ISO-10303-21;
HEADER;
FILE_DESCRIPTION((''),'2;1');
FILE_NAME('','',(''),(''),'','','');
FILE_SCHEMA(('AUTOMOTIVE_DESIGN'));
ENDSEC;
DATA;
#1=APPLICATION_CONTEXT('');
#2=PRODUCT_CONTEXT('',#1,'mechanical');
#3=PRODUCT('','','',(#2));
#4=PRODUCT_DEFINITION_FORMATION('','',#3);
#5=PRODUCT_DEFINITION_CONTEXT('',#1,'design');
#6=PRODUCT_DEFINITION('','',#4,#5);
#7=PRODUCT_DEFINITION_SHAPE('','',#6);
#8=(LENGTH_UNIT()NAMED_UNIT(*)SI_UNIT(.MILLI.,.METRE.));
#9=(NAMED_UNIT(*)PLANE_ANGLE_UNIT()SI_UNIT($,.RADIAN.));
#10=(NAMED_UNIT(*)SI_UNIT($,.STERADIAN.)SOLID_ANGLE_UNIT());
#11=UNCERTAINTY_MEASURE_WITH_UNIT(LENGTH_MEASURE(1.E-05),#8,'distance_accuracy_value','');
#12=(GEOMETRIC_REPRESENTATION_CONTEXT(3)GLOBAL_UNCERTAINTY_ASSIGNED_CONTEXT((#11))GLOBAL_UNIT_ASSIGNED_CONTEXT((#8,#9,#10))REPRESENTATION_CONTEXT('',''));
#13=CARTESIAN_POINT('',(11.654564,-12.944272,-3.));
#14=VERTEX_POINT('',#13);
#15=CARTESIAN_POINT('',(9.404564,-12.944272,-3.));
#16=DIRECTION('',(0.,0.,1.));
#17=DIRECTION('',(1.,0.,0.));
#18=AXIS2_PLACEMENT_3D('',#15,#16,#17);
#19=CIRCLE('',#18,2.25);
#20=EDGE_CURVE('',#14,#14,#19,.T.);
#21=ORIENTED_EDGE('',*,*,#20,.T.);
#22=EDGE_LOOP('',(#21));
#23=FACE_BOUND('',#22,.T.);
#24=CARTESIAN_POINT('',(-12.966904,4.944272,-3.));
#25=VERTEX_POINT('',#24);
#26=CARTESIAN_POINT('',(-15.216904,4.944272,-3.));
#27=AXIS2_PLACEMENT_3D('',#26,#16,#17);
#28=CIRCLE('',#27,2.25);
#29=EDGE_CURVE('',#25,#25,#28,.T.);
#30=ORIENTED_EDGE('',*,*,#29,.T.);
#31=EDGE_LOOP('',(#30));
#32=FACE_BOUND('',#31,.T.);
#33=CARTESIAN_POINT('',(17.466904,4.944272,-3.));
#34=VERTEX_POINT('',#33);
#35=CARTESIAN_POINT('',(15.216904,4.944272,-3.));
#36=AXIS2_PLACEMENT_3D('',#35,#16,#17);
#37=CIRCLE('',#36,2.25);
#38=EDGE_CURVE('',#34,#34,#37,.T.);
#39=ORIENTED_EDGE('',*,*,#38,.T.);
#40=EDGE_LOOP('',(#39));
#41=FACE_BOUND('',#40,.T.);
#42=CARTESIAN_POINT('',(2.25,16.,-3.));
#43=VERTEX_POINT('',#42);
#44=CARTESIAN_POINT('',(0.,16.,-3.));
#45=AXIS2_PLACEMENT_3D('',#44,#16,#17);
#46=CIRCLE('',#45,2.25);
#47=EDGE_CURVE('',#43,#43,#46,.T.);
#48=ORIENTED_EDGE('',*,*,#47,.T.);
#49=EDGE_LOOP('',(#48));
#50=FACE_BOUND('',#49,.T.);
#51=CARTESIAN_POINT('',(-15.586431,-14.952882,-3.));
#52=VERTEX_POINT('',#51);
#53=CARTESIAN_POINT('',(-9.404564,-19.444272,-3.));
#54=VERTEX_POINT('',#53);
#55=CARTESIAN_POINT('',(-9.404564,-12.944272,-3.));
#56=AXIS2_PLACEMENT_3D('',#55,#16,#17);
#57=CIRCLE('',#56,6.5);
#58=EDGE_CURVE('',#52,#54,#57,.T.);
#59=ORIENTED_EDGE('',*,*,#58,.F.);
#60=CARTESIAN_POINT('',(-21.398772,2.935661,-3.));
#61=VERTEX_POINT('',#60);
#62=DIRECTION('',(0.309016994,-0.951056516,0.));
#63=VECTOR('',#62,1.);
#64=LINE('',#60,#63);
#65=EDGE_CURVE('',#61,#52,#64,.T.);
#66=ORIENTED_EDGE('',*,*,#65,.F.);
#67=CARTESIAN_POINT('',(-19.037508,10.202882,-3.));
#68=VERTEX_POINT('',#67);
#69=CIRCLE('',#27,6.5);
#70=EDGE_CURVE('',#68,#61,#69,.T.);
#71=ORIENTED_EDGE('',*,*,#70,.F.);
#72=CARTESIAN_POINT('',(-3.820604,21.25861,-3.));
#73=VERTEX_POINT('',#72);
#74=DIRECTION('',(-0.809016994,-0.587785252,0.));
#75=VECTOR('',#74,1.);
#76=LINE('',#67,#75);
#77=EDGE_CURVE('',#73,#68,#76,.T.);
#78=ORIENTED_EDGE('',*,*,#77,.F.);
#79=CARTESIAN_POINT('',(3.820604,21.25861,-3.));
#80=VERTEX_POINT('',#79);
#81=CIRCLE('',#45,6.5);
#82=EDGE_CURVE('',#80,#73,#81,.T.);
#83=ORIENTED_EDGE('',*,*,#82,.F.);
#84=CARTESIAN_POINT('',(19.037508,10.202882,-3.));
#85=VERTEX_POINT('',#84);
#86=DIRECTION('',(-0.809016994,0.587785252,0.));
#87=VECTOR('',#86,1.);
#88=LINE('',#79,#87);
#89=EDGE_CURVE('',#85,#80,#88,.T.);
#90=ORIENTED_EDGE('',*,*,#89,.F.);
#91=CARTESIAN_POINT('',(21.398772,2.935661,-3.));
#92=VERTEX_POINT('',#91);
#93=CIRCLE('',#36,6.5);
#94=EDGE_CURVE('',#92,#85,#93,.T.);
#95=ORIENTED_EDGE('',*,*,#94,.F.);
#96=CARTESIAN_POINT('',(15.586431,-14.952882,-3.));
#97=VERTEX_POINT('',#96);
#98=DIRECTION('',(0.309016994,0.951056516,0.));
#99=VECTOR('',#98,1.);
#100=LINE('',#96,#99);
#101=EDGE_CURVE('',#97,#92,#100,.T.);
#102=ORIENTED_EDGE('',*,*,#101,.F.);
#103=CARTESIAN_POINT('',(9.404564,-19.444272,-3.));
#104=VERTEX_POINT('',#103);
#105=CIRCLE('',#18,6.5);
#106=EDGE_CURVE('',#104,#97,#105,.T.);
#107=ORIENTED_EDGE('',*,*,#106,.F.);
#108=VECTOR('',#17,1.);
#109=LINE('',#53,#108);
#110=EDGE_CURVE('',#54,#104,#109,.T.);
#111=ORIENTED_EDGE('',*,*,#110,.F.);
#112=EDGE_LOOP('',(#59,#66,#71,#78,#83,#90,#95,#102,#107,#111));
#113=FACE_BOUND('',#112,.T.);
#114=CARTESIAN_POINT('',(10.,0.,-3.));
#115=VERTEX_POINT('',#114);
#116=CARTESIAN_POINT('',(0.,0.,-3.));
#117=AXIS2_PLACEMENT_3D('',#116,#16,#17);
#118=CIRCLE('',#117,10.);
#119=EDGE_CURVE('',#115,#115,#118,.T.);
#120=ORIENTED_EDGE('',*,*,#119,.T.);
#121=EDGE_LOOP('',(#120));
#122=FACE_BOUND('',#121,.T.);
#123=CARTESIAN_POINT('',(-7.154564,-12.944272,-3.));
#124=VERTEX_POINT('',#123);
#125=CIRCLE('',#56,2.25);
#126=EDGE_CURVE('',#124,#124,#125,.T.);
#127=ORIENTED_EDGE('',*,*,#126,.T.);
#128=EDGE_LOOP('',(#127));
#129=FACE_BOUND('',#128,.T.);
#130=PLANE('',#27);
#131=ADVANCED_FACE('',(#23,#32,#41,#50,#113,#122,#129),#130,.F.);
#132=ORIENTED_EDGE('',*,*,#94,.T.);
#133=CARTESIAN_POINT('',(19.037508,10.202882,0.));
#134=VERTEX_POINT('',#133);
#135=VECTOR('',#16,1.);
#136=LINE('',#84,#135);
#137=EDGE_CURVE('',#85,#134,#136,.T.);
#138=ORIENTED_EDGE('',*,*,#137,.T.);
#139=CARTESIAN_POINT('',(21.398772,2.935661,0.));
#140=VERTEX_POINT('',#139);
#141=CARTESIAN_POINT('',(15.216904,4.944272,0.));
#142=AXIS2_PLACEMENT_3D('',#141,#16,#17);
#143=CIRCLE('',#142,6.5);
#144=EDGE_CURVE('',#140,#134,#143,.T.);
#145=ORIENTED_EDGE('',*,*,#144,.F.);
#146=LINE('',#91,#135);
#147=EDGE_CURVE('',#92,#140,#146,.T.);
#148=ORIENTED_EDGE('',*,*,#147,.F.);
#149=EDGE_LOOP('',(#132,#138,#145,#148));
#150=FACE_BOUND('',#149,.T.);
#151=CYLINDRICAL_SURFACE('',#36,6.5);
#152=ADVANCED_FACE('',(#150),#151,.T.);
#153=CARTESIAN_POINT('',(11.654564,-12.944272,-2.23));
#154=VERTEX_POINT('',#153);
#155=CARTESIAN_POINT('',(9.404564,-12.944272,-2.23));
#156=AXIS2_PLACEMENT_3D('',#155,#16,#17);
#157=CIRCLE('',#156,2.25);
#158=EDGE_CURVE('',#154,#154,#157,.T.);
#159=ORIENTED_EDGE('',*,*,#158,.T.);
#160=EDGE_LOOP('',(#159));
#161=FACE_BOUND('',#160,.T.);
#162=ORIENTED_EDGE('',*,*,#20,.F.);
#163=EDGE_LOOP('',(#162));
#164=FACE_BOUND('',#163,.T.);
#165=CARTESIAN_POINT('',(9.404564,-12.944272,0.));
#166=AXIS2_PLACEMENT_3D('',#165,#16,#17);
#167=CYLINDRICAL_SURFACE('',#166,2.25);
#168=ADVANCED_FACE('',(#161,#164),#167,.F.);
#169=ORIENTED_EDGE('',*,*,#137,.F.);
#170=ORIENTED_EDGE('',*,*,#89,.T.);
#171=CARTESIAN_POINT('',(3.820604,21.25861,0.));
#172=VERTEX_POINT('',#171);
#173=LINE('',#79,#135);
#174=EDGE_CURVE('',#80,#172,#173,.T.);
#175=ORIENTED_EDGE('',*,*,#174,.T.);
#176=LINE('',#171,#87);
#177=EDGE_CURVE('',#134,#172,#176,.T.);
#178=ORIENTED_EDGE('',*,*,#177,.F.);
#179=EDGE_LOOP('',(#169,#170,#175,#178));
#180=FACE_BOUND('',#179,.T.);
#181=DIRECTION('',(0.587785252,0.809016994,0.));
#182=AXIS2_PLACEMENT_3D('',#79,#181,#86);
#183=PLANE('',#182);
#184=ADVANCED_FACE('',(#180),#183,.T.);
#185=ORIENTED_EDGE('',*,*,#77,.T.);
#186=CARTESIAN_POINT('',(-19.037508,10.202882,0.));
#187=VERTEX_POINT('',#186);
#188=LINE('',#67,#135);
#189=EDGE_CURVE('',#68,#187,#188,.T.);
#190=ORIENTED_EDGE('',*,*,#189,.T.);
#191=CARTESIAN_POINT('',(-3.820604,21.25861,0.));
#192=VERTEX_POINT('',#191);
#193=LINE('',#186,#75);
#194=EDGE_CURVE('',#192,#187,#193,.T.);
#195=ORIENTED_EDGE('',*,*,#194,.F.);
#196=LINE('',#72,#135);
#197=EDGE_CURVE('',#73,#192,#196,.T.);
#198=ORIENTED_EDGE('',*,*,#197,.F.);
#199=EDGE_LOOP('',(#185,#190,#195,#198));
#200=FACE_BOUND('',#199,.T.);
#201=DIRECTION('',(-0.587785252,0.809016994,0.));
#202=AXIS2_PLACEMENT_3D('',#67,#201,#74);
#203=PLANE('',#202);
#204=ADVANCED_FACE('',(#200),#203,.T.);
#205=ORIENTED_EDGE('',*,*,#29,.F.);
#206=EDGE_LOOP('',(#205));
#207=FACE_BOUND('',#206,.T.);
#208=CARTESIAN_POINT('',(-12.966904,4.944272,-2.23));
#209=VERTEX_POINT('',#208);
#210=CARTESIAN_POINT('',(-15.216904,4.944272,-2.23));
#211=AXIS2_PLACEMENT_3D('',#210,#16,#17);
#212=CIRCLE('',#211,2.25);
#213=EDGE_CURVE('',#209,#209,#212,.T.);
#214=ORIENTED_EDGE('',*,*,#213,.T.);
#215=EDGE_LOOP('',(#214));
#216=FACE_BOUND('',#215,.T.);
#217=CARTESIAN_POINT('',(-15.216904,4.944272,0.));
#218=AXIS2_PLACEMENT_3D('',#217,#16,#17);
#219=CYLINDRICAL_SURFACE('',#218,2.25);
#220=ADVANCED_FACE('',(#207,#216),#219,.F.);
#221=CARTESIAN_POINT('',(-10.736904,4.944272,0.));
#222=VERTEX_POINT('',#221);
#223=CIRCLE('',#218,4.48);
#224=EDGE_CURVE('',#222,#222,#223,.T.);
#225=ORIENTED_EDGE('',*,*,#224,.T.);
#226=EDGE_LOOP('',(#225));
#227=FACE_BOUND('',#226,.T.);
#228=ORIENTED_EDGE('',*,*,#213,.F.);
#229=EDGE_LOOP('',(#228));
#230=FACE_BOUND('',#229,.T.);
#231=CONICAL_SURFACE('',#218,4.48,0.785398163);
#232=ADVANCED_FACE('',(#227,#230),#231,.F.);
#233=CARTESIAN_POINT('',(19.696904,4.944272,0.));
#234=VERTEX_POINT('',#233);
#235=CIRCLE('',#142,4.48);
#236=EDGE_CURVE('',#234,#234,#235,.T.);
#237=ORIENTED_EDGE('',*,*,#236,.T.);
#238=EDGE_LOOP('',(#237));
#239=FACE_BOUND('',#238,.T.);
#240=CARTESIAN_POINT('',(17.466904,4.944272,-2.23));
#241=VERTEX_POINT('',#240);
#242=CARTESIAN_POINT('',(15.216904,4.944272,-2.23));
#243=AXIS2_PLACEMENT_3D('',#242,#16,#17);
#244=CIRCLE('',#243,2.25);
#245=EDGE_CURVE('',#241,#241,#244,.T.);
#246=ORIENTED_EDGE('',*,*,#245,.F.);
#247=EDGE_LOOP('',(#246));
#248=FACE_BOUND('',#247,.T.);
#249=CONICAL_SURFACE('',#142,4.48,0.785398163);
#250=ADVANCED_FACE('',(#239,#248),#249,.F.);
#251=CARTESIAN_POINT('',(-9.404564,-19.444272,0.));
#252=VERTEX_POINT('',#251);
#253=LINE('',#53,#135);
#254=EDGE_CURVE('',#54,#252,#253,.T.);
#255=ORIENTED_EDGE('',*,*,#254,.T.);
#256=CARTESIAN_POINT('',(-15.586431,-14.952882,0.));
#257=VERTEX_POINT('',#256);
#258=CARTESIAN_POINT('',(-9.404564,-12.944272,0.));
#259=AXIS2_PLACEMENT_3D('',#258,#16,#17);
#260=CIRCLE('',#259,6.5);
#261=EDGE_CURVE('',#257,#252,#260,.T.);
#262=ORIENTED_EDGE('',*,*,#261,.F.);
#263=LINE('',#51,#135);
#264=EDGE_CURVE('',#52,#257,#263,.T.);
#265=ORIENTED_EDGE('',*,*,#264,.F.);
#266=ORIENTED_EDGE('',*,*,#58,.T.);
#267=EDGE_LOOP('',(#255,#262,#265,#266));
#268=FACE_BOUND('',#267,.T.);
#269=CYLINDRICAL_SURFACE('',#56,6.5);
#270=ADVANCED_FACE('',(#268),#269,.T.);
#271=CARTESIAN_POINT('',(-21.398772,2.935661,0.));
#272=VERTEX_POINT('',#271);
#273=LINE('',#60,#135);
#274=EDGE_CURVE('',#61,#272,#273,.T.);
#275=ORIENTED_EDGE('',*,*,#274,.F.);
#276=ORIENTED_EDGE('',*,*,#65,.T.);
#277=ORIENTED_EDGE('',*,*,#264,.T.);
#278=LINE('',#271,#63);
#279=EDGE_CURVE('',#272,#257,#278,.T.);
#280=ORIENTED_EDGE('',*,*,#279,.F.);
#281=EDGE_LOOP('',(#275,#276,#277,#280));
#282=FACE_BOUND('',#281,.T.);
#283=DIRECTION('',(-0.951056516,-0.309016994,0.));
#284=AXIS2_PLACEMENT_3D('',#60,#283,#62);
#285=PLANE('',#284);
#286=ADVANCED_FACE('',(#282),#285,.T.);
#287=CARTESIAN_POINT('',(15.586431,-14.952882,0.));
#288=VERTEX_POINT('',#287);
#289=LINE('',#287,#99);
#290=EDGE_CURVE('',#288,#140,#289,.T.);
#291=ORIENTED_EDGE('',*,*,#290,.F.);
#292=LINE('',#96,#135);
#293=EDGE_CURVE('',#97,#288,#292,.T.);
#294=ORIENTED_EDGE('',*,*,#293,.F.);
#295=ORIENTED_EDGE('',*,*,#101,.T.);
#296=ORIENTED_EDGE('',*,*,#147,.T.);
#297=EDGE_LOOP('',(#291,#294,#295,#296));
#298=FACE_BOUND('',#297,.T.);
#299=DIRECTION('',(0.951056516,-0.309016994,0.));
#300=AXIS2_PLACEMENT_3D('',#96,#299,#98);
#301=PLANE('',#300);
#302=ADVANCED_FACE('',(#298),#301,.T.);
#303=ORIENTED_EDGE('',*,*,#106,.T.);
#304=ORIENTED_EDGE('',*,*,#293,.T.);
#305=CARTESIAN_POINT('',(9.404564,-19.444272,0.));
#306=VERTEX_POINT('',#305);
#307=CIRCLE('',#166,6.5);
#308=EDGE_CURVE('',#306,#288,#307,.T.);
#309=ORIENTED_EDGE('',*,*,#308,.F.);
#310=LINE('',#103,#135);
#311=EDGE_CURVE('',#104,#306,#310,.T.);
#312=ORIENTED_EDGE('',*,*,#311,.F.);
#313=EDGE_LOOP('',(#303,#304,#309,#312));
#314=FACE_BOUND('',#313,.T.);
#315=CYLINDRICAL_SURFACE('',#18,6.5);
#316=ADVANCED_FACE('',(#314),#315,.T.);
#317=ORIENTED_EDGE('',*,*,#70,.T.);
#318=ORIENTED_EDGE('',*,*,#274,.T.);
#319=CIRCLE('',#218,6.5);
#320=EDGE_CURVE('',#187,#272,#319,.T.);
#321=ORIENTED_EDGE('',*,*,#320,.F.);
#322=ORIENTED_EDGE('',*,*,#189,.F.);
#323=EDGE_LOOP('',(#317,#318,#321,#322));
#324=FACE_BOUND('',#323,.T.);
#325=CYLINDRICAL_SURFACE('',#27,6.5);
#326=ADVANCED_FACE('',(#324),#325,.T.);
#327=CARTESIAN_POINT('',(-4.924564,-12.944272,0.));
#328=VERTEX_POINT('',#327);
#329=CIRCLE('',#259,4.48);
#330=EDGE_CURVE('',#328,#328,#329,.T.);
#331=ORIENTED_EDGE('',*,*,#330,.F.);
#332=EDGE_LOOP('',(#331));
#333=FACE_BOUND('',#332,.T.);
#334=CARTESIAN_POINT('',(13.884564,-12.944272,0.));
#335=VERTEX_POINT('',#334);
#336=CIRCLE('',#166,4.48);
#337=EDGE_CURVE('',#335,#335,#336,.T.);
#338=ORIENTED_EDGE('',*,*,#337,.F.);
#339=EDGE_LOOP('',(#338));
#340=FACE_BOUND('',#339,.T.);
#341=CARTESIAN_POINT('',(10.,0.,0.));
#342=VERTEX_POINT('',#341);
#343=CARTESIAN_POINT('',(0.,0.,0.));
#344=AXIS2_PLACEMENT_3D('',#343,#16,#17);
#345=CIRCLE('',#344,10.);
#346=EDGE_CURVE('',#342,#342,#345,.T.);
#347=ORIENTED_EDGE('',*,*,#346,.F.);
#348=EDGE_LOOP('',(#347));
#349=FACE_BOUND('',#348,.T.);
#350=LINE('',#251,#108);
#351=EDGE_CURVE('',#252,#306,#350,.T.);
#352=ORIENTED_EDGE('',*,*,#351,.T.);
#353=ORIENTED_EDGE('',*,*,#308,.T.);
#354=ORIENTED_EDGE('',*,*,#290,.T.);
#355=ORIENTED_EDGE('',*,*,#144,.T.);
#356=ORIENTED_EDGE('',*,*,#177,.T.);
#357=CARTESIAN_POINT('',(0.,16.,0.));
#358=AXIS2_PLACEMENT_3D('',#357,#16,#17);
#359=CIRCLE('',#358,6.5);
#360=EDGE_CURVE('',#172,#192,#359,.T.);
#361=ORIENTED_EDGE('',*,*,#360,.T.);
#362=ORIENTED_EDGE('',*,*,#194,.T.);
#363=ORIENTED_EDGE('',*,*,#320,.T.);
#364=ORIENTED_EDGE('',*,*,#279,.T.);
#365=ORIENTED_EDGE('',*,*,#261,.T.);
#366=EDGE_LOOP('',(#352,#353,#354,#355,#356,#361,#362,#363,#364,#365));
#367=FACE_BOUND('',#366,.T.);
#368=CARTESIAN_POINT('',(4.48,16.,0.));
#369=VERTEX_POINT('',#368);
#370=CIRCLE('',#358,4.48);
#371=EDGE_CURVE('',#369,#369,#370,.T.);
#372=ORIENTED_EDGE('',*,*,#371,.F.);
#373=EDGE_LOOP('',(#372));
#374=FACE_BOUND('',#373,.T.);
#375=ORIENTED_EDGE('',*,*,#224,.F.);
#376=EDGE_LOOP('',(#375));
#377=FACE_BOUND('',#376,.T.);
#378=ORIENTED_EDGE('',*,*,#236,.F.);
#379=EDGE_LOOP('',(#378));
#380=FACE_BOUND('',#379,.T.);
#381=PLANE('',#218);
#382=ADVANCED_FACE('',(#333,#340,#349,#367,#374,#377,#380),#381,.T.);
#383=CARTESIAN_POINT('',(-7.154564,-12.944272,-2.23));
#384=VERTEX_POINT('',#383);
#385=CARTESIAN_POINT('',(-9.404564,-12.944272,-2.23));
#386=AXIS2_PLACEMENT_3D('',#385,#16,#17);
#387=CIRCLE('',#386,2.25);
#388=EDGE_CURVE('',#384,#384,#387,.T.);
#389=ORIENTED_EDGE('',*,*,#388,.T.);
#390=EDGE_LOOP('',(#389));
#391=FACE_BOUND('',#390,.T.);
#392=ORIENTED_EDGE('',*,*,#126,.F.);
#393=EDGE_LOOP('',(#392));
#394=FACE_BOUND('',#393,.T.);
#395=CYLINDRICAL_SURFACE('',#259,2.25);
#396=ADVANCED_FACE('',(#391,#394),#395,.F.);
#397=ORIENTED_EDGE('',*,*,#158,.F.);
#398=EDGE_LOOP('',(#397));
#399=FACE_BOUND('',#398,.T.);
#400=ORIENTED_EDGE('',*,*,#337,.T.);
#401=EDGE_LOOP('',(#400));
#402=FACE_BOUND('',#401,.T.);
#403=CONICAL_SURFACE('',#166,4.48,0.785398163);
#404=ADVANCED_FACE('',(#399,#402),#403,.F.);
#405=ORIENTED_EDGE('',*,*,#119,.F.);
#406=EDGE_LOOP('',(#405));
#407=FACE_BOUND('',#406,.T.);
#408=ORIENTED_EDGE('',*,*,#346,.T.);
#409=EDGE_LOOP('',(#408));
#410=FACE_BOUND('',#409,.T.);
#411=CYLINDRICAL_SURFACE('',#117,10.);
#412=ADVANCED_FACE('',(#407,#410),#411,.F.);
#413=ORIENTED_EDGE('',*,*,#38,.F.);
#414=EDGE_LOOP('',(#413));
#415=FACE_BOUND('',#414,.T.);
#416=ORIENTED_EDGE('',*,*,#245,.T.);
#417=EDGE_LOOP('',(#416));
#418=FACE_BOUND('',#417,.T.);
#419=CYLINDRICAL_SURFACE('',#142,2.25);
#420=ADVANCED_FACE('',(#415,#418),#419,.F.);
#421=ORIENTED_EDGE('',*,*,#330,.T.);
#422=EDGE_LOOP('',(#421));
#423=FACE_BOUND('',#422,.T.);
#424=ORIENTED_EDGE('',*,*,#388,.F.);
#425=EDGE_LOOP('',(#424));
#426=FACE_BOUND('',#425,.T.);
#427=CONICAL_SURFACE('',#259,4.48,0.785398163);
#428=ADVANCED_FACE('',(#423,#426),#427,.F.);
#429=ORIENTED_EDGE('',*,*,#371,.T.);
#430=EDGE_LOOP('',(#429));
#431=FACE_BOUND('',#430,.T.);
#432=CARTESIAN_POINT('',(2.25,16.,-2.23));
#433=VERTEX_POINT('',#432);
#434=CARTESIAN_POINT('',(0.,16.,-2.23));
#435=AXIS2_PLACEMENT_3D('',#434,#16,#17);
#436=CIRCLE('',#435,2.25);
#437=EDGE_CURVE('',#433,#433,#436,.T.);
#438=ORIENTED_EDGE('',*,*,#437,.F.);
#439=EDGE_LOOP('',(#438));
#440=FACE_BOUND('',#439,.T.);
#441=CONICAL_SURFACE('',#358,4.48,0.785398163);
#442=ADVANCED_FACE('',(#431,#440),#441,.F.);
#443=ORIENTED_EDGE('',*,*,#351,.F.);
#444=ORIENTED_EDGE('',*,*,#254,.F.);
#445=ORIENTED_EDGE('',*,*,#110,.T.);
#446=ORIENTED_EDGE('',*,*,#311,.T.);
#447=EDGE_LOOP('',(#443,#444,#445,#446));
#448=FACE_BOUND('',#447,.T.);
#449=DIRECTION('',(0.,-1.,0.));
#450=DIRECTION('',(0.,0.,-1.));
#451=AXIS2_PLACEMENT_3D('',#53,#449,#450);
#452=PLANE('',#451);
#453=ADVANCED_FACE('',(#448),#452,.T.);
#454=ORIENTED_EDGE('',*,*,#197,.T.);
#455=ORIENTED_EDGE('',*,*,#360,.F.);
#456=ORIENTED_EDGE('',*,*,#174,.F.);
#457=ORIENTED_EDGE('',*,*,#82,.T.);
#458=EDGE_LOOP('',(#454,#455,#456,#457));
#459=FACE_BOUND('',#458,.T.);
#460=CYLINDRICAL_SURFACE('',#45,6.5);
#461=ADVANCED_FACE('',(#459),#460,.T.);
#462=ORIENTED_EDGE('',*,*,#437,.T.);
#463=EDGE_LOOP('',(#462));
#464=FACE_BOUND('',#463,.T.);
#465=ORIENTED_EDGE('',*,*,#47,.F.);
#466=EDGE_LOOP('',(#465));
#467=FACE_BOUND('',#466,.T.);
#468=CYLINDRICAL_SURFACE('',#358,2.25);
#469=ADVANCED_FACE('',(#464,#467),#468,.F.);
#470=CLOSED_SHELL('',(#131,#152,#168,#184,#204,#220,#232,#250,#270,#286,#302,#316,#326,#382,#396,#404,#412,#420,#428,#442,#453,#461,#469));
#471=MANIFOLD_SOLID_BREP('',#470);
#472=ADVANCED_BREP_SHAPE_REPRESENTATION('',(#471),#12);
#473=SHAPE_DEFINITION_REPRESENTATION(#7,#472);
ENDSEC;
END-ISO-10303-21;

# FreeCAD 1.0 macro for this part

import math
import FreeCAD as App
import Part
import Sketcher
Q = App.Units.Quantity

doc = App.newDocument("Part")
body = doc.addObject("PartDesign::Body", "Body")

# Sketch on XY plane
sketch1 = body.newObject("Sketcher::SketchObject", "Sketch")
sketch1.AttachmentSupport = (doc.getObject("XY_Plane"), [""])
sketch1.MapMode = "FlatFace"
sketch1.addGeometry([
    Part.LineSegment(App.Vector(-21, 3, 0), App.Vector(-16, -15, 0)),  # 0
    Part.ArcOfCircle(Part.Circle(App.Vector(-9, -13, 0), App.Vector(0, 0, 1), 7), math.radians(-162), math.radians(-90)),  # 1
    Part.LineSegment(App.Vector(-9, -19, 0), App.Vector(9, -19, 0)),  # 2
    Part.ArcOfCircle(Part.Circle(App.Vector(9, -13, 0), App.Vector(0, 0, 1), 7), math.radians(-90), math.radians(-18)),  # 3
    Part.LineSegment(App.Vector(16, -15, 0), App.Vector(21, 3, 0)),  # 4
    Part.ArcOfCircle(Part.Circle(App.Vector(15, 5, 0), App.Vector(0, 0, 1), 6), math.radians(-18), math.radians(54)),  # 5
    Part.LineSegment(App.Vector(19, 10, 0), App.Vector(4, 21, 0)),  # 6
    Part.ArcOfCircle(Part.Circle(App.Vector(0, 16, 0), App.Vector(0, 0, 1), 6), math.radians(54), math.radians(126)),  # 7
    Part.LineSegment(App.Vector(-4, 21, 0), App.Vector(-19, 10, 0)),  # 8
    Part.ArcOfCircle(Part.Circle(App.Vector(-15, 5, 0), App.Vector(0, 0, 1), 6), math.radians(126), math.radians(198)),  # 9
    Part.Circle(App.Vector(0, 0, 0), App.Vector(0, 0, 1), 10),  # 10
], False)
sketch1.addConstraint([
    Sketcher.Constraint("Tangent", 0, 2, 1, 1),
    Sketcher.Constraint("Tangent", 1, 2, 2, 1),
    Sketcher.Constraint("Tangent", 2, 2, 3, 1),
    Sketcher.Constraint("Tangent", 3, 2, 4, 1),
    Sketcher.Constraint("Tangent", 4, 2, 5, 1),
    Sketcher.Constraint("Tangent", 5, 2, 6, 1),
    Sketcher.Constraint("Tangent", 6, 2, 7, 1),
    Sketcher.Constraint("Tangent", 7, 2, 8, 1),
    Sketcher.Constraint("Tangent", 8, 2, 9, 1),
    Sketcher.Constraint("Tangent", 9, 2, 0, 1),
    Sketcher.Constraint("Horizontal", 2),
    Sketcher.Constraint("Coincident", 10, 3, -1, 1),
    Sketcher.Constraint("Equal", 1, 3),
    Sketcher.Constraint("Equal", 3, 5),
    Sketcher.Constraint("Equal", 5, 7),
    Sketcher.Constraint("Equal", 7, 9),
    Sketcher.Constraint("Symmetric", 5, 3, 9, 3, -2),
    Sketcher.Constraint("PointOnObject", 7, 3, -2),
    Sketcher.Constraint("Horizontal", 0, 2, 3, 2),
    Sketcher.Constraint("Equal", 4, 6),
    Sketcher.Constraint("Diameter", 10, 20.0),
    Sketcher.Constraint("Radius", 1, 6.5),
    Sketcher.Constraint("Angle", 0, Q("-72 deg")),
    Sketcher.Constraint("Angle", 6, Q("144 deg")),
    Sketcher.Constraint("DistanceY", -1, 1, 7, 3, 16.0),
    Sketcher.Constraint("DistanceX", 2, 1, 2, 2, 18.809128),
])
pad1 = body.newObject("PartDesign::Pad", "Pad")
pad1.Profile = sketch1
pad1.Length = 3
pad1.Reversed = True

# Sketch on XY plane
sketch2 = body.newObject("Sketcher::SketchObject", "Sketch001")
sketch2.AttachmentSupport = (doc.getObject("XY_Plane"), [""])
sketch2.MapMode = "FlatFace"
sketch2.addGeometry([
    Part.Circle(App.Vector(0, 16, 0), App.Vector(0, 0, 1), 2.2),  # 0
    Part.Circle(App.Vector(15.2, 4.9, 0), App.Vector(0, 0, 1), 2.2),  # 1
    Part.Circle(App.Vector(9.4, -12.9, 0), App.Vector(0, 0, 1), 2.2),  # 2
    Part.Circle(App.Vector(-9.4, -12.9, 0), App.Vector(0, 0, 1), 2.2),  # 3
    Part.Circle(App.Vector(-15.2, 4.9, 0), App.Vector(0, 0, 1), 2.2),  # 4
], False)
sketch2.addConstraint([
    Sketcher.Constraint("Equal", 0, 1),
    Sketcher.Constraint("Equal", 1, 2),
    Sketcher.Constraint("Equal", 2, 3),
    Sketcher.Constraint("Equal", 3, 4),
    Sketcher.Constraint("Symmetric", 2, 3, 3, 3, -2),
    Sketcher.Constraint("Symmetric", 1, 3, 4, 3, -2),
    Sketcher.Constraint("PointOnObject", 0, 3, -2),
    Sketcher.Constraint("Diameter", 0, 4.5),
    Sketcher.Constraint("DistanceY", -1, 1, 0, 3, 16.0),
    Sketcher.Constraint("DistanceY", -1, 1, 1, 3, 4.944272),
    Sketcher.Constraint("DistanceY", 2, 3, -1, 1, 12.944272),
    Sketcher.Constraint("DistanceX", 2, 3, 1, 3, 5.81234),
    Sketcher.Constraint("DistanceX", 3, 3, 2, 3, 18.809128),
])
doc.recompute()
hole = body.newObject("PartDesign::Hole", "Hole")
hole.Profile = sketch2
hole.ThreadType = "None"
hole.Diameter = 4.5
hole.DepthType = "Dimension"
hole.Depth = 5.1
hole.DrillPoint = "Angled"
hole.DrillPointAngle = 118
hole.HoleCutType = "Countersink"
hole.HoleCutDiameter = 8.96
hole.HoleCutCountersinkAngle = 90

doc.recompute()
